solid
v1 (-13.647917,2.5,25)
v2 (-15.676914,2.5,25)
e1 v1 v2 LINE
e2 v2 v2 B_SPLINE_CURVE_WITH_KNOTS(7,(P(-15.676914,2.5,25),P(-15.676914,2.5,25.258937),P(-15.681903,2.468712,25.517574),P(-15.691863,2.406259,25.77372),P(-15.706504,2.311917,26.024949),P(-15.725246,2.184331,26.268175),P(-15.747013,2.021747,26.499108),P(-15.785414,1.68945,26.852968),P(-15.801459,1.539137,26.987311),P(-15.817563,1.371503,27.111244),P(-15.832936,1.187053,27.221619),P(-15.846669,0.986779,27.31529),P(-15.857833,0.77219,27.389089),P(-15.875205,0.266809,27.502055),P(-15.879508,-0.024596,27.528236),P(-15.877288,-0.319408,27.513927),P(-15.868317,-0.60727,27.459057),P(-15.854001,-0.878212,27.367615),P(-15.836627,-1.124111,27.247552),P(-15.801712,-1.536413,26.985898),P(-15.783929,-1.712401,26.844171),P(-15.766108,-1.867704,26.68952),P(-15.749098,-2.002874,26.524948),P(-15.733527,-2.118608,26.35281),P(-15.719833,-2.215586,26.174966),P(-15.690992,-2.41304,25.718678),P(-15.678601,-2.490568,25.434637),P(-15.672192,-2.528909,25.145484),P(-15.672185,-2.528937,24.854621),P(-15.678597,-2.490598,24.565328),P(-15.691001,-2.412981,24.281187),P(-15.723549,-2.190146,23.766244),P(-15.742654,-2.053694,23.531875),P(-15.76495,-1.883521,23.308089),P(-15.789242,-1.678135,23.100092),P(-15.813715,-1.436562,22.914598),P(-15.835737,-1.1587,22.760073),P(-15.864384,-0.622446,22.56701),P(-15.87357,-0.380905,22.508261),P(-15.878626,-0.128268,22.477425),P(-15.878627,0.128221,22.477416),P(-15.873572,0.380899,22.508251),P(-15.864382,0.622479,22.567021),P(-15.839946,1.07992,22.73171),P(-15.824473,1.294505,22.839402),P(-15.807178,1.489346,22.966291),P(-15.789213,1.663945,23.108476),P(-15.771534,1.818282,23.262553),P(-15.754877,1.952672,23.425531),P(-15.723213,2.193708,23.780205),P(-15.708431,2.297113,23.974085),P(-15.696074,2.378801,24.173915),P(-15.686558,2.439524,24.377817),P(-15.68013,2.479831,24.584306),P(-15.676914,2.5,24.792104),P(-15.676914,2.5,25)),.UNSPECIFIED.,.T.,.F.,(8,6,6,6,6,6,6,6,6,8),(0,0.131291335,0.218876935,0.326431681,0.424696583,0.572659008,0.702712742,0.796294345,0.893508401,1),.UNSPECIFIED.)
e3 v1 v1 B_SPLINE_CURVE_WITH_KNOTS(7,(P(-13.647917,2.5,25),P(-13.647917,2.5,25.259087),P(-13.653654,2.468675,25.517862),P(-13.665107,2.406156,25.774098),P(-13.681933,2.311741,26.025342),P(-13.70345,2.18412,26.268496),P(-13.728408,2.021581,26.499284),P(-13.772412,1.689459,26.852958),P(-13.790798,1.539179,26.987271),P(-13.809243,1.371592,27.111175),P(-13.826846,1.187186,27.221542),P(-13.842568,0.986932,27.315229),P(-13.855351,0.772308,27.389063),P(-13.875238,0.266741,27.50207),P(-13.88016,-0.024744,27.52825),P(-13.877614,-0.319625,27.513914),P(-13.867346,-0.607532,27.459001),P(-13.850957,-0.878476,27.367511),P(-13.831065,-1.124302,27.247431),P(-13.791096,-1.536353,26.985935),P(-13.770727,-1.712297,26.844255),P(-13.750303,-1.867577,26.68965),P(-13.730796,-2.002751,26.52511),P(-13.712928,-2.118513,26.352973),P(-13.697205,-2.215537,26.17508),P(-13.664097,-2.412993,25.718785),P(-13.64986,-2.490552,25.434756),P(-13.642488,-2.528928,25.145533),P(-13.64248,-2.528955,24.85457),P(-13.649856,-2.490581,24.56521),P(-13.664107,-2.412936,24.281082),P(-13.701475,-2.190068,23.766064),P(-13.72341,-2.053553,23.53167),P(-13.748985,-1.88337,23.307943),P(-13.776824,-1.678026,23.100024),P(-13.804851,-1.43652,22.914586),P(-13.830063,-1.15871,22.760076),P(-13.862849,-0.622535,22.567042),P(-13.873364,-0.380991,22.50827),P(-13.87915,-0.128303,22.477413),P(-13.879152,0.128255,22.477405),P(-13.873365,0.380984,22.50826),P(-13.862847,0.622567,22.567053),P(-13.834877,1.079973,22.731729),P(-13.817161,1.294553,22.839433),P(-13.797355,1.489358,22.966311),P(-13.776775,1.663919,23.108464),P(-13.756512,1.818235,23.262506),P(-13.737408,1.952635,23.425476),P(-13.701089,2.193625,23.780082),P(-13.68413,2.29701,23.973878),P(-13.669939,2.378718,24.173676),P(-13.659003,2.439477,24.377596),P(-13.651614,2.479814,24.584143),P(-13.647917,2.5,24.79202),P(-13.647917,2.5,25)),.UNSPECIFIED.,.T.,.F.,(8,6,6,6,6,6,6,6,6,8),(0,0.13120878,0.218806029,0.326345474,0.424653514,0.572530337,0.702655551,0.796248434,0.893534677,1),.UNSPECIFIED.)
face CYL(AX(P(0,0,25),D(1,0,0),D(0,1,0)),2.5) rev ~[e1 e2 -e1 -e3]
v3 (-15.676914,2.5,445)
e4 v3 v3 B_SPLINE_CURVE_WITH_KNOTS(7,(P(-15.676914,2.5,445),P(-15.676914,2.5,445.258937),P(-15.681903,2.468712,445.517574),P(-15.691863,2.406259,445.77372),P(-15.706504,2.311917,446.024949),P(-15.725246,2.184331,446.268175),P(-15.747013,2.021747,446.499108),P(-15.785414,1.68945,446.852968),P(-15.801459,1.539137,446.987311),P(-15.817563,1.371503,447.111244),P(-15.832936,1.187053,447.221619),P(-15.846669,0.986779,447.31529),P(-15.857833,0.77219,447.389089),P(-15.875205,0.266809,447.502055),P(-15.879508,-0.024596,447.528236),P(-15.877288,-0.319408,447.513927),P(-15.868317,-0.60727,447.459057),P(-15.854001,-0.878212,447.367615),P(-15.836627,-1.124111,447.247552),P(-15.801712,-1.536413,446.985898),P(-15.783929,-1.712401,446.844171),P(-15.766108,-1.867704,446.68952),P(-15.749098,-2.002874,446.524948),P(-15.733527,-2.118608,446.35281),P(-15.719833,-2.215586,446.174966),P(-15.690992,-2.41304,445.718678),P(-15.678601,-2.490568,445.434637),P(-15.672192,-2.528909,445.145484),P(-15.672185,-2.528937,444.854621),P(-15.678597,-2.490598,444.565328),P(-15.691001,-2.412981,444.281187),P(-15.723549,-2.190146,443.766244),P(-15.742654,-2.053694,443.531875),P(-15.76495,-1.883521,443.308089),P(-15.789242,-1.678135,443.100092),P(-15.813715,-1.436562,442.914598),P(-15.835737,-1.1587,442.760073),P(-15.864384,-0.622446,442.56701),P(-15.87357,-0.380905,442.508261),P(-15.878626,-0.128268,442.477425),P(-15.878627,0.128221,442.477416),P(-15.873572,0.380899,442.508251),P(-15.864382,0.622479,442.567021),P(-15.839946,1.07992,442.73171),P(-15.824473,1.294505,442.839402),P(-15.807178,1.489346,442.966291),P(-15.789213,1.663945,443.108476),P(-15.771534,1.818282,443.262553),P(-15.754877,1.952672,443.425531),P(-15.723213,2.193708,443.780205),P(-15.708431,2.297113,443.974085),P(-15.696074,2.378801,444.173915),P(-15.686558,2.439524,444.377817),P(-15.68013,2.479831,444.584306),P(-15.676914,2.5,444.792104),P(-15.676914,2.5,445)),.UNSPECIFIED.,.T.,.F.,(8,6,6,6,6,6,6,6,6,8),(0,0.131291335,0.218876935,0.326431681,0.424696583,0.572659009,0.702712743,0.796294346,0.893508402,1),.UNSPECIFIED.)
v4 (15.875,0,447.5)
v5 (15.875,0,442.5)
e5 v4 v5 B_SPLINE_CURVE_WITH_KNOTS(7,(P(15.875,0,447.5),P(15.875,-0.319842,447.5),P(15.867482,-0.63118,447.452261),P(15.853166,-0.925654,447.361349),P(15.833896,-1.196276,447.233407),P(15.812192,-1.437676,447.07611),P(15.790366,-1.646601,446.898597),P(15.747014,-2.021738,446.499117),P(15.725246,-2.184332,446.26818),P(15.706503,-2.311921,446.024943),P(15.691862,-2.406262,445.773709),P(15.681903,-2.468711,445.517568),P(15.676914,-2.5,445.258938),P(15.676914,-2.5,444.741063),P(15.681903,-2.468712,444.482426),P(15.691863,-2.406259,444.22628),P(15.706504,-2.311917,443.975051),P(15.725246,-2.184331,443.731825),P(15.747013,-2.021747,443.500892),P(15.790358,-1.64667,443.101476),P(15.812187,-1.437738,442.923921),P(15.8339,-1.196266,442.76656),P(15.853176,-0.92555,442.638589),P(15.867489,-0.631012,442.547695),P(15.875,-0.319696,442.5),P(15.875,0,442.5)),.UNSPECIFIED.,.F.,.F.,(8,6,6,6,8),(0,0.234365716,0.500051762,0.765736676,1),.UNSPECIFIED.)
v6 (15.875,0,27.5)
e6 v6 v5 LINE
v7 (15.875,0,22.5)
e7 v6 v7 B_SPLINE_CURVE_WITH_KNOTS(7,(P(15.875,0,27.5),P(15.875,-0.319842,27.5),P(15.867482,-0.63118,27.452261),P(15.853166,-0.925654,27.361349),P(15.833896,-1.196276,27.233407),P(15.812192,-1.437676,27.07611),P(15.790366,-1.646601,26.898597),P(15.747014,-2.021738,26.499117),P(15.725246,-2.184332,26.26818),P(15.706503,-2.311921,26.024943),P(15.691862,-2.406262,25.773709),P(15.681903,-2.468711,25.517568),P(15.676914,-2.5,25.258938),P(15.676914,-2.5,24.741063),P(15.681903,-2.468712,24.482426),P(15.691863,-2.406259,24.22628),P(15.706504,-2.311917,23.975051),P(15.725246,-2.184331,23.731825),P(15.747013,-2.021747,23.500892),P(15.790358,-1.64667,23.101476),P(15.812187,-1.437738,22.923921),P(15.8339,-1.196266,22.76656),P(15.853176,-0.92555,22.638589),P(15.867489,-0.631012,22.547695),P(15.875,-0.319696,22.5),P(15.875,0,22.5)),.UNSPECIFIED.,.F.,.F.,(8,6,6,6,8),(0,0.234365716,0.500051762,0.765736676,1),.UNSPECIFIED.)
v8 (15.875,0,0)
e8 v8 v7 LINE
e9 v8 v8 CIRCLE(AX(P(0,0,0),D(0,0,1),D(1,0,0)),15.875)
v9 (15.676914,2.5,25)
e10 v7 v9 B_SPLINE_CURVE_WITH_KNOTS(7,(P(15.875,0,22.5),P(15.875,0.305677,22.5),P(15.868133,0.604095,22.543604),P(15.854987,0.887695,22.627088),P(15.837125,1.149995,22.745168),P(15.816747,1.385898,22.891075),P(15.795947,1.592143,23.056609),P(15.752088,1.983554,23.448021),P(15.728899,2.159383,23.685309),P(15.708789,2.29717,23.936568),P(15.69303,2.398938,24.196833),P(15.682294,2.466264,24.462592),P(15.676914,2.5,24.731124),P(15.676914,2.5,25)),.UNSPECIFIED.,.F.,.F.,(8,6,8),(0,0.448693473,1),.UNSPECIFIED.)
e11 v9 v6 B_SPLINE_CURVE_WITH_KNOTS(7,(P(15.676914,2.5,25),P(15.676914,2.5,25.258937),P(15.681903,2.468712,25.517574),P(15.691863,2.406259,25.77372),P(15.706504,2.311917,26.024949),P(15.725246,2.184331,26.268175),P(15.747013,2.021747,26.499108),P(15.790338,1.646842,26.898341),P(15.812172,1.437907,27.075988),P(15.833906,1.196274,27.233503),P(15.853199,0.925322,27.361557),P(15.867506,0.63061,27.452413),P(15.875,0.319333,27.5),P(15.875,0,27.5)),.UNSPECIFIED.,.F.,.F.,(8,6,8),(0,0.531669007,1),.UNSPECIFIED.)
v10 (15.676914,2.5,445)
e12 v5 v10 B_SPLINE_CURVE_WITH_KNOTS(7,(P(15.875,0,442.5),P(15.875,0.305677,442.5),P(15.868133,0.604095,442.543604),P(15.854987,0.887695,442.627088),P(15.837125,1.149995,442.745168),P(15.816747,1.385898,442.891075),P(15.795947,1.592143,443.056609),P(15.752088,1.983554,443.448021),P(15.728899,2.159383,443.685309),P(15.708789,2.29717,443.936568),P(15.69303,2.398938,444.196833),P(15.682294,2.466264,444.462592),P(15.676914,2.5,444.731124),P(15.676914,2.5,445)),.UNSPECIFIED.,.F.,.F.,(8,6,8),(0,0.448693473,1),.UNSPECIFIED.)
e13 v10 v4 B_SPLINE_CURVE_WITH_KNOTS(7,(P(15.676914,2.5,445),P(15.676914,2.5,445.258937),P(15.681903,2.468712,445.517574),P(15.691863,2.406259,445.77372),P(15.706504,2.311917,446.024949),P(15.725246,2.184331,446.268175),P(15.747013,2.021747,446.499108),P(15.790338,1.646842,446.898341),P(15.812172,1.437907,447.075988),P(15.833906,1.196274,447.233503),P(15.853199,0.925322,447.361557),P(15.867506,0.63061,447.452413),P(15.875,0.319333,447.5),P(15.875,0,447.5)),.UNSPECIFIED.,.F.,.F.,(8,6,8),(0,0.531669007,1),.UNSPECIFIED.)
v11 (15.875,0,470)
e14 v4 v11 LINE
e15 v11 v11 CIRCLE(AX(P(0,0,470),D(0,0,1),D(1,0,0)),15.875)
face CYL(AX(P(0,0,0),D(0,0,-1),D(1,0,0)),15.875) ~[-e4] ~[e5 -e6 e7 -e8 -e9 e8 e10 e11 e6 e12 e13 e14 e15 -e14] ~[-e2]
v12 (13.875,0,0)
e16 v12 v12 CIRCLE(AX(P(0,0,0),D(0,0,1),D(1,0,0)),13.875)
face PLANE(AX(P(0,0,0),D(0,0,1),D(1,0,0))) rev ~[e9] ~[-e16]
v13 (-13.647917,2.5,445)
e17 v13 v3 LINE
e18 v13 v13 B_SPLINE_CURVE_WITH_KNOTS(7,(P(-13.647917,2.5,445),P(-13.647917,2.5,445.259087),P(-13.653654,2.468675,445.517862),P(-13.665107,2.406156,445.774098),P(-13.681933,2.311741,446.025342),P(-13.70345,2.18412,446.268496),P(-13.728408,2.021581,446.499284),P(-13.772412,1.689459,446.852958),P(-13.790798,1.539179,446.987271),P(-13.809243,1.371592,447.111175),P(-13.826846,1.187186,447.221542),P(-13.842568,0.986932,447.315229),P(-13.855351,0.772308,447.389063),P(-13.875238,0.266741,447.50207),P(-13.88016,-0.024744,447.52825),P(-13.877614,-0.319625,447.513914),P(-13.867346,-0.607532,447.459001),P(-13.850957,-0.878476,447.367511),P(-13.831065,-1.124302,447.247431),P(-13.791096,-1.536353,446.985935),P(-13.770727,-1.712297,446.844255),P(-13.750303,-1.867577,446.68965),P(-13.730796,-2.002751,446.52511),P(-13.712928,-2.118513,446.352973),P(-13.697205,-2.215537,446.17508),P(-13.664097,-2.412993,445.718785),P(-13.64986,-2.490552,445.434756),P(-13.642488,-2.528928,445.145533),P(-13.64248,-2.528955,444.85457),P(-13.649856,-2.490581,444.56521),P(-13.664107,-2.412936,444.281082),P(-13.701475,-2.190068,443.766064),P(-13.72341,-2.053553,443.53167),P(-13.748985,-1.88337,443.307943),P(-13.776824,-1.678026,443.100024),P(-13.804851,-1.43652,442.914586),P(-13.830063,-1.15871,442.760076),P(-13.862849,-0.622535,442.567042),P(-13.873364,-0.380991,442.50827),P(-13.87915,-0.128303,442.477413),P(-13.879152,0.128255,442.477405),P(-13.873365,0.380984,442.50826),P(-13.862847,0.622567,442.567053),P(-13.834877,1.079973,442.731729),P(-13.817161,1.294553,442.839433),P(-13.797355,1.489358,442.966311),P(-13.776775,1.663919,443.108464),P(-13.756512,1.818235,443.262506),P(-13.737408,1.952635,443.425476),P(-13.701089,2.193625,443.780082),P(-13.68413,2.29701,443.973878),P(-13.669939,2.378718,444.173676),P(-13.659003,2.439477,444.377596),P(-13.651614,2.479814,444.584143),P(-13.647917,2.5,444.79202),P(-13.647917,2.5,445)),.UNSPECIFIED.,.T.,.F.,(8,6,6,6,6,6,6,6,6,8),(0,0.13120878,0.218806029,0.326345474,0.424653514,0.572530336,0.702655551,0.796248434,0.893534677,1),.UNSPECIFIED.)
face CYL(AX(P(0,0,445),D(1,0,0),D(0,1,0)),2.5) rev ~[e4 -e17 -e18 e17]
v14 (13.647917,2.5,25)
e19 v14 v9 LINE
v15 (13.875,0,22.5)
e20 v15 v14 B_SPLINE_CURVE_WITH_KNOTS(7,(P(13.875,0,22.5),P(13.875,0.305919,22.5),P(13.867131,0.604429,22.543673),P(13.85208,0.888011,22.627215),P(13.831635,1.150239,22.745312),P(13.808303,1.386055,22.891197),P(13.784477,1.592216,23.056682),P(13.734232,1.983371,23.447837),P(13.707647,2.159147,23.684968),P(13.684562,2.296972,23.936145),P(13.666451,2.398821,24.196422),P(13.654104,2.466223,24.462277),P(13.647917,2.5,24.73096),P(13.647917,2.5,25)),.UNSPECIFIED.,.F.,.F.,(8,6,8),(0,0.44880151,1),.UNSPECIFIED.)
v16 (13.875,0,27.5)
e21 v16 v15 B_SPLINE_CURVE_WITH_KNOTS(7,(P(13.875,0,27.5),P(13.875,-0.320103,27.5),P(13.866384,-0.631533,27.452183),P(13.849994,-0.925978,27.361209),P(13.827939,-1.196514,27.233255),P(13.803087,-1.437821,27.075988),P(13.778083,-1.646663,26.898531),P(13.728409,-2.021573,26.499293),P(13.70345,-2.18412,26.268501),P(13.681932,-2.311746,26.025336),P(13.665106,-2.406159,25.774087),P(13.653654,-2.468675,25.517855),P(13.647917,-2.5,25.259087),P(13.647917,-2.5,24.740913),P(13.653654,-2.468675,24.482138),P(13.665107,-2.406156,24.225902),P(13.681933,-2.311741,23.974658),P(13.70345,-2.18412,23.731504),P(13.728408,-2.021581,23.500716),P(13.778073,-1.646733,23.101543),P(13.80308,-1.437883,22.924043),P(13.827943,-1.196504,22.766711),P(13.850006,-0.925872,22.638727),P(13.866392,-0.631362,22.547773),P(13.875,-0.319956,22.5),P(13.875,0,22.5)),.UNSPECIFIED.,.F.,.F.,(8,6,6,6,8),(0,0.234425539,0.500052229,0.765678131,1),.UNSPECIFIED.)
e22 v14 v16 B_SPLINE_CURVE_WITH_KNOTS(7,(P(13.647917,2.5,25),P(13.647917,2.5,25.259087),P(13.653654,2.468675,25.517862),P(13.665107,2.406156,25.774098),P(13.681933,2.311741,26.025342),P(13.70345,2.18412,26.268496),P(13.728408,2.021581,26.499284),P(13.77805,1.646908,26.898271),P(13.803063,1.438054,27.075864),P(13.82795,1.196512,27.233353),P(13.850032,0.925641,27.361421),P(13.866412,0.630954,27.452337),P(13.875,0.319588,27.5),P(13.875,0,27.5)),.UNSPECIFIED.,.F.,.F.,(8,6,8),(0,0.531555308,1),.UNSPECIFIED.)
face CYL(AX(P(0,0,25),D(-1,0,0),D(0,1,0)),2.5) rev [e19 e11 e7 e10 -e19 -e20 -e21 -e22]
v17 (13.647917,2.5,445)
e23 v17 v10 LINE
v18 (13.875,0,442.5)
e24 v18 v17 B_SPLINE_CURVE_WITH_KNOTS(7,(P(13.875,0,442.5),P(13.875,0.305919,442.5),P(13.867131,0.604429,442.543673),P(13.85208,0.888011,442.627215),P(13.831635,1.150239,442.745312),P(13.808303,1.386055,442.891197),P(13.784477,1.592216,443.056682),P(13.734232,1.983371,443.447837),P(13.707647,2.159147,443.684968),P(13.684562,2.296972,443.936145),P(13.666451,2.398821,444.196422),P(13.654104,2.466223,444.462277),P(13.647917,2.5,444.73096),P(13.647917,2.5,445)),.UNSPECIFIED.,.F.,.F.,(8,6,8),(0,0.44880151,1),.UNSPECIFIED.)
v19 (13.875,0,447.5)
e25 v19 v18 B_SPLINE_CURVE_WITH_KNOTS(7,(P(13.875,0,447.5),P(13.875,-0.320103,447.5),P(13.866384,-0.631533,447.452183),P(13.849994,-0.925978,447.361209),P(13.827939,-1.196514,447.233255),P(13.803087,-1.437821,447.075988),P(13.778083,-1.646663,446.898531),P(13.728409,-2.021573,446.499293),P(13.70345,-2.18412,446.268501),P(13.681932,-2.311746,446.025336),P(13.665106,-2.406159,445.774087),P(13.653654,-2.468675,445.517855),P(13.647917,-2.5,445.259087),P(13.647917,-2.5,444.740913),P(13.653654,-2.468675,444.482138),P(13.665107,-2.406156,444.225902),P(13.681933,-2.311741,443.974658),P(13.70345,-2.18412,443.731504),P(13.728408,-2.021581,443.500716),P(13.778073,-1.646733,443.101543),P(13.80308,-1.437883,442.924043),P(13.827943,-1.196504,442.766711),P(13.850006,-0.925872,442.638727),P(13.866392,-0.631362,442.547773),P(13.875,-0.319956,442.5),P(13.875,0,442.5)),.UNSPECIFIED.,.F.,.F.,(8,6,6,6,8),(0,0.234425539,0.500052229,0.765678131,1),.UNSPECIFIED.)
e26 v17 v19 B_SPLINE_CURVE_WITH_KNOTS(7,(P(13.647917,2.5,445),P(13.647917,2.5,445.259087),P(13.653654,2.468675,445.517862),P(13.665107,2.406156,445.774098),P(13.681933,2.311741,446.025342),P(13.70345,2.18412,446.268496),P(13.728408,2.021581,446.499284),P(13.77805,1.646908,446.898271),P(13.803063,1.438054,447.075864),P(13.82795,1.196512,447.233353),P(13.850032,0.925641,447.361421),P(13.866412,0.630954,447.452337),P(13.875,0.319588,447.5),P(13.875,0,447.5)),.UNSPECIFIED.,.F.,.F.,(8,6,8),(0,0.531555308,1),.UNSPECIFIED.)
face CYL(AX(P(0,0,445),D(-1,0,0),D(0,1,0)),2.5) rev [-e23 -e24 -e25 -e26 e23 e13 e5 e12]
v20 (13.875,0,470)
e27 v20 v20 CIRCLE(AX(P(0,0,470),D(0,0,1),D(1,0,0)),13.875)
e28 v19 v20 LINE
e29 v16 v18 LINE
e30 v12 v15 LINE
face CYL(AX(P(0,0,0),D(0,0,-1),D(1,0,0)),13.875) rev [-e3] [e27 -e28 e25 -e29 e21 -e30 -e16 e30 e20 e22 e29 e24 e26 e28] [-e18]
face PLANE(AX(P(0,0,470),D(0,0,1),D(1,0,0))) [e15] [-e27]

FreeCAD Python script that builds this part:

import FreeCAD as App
import Part
import Sketcher
Q = App.Units.Quantity

doc = App.newDocument("Part")
body = doc.addObject("PartDesign::Body", "Body")

# Sketch on XY plane
sketch1 = body.newObject("Sketcher::SketchObject", "Sketch")
sketch1.AttachmentSupport = (doc.getObject("XY_Plane"), [""])
sketch1.MapMode = "FlatFace"
sketch1.addGeometry(Part.Circle(App.Vector(0, 0, 0), App.Vector(0, 0, 1), 15.875), False)
sketch1.addGeometry(Part.Circle(App.Vector(0, 0, 0), App.Vector(0, 0, 1), 13.875), False)
sketch1.addConstraint(Sketcher.Constraint("Coincident", 0, 3, -1, 1))
sketch1.addConstraint(Sketcher.Constraint("Coincident", 1, 3, -1, 1))
sketch1.addConstraint(Sketcher.Constraint("Diameter", 0, Q("31.75 mm")))
sketch1.addConstraint(Sketcher.Constraint("Diameter", 1, Q("27.75 mm")))
pad1 = body.newObject("PartDesign::Pad", "Pad")
pad1.Profile = sketch1
pad1.Length = 470

# Sketch on YZ plane
sketch2 = body.newObject("Sketcher::SketchObject", "Sketch001")
sketch2.AttachmentSupport = (doc.getObject("YZ_Plane"), [""])
sketch2.MapMode = "FlatFace"
sketch2.addGeometry(Part.Circle(App.Vector(0, 25, 0), App.Vector(0, 0, 1), 2.5), False)
sketch2.addConstraint(Sketcher.Constraint("PointOnObject", 0, 3, -2))
sketch2.addConstraint(Sketcher.Constraint("Diameter", 0, Q("5 mm")))
sketch2.addConstraint(Sketcher.Constraint("DistanceY", -1, 1, 0, 3, Q("25 mm")))
pocket1 = body.newObject("PartDesign::Pocket", "Pocket")
pocket1.Profile = sketch2
pocket1.Type = "ThroughAll"
pocket1.Midplane = True

# Sketch on YZ plane
sketch3 = body.newObject("Sketcher::SketchObject", "Sketch002")
sketch3.AttachmentSupport = (doc.getObject("YZ_Plane"), [""])
sketch3.MapMode = "FlatFace"
sketch3.addGeometry(Part.Circle(App.Vector(0, 445, 0), App.Vector(0, 0, 1), 2.5), False)
sketch3.addConstraint(Sketcher.Constraint("PointOnObject", 0, 3, -2))
sketch3.addConstraint(Sketcher.Constraint("Diameter", 0, Q("5 mm")))
sketch3.addConstraint(Sketcher.Constraint("DistanceY", -1, 1, 0, 3, Q("445 mm")))
pocket2 = body.newObject("PartDesign::Pocket", "Pocket001")
pocket2.Profile = sketch3
pocket2.Type = "ThroughAll"
pocket2.Midplane = True

doc.recompute()
